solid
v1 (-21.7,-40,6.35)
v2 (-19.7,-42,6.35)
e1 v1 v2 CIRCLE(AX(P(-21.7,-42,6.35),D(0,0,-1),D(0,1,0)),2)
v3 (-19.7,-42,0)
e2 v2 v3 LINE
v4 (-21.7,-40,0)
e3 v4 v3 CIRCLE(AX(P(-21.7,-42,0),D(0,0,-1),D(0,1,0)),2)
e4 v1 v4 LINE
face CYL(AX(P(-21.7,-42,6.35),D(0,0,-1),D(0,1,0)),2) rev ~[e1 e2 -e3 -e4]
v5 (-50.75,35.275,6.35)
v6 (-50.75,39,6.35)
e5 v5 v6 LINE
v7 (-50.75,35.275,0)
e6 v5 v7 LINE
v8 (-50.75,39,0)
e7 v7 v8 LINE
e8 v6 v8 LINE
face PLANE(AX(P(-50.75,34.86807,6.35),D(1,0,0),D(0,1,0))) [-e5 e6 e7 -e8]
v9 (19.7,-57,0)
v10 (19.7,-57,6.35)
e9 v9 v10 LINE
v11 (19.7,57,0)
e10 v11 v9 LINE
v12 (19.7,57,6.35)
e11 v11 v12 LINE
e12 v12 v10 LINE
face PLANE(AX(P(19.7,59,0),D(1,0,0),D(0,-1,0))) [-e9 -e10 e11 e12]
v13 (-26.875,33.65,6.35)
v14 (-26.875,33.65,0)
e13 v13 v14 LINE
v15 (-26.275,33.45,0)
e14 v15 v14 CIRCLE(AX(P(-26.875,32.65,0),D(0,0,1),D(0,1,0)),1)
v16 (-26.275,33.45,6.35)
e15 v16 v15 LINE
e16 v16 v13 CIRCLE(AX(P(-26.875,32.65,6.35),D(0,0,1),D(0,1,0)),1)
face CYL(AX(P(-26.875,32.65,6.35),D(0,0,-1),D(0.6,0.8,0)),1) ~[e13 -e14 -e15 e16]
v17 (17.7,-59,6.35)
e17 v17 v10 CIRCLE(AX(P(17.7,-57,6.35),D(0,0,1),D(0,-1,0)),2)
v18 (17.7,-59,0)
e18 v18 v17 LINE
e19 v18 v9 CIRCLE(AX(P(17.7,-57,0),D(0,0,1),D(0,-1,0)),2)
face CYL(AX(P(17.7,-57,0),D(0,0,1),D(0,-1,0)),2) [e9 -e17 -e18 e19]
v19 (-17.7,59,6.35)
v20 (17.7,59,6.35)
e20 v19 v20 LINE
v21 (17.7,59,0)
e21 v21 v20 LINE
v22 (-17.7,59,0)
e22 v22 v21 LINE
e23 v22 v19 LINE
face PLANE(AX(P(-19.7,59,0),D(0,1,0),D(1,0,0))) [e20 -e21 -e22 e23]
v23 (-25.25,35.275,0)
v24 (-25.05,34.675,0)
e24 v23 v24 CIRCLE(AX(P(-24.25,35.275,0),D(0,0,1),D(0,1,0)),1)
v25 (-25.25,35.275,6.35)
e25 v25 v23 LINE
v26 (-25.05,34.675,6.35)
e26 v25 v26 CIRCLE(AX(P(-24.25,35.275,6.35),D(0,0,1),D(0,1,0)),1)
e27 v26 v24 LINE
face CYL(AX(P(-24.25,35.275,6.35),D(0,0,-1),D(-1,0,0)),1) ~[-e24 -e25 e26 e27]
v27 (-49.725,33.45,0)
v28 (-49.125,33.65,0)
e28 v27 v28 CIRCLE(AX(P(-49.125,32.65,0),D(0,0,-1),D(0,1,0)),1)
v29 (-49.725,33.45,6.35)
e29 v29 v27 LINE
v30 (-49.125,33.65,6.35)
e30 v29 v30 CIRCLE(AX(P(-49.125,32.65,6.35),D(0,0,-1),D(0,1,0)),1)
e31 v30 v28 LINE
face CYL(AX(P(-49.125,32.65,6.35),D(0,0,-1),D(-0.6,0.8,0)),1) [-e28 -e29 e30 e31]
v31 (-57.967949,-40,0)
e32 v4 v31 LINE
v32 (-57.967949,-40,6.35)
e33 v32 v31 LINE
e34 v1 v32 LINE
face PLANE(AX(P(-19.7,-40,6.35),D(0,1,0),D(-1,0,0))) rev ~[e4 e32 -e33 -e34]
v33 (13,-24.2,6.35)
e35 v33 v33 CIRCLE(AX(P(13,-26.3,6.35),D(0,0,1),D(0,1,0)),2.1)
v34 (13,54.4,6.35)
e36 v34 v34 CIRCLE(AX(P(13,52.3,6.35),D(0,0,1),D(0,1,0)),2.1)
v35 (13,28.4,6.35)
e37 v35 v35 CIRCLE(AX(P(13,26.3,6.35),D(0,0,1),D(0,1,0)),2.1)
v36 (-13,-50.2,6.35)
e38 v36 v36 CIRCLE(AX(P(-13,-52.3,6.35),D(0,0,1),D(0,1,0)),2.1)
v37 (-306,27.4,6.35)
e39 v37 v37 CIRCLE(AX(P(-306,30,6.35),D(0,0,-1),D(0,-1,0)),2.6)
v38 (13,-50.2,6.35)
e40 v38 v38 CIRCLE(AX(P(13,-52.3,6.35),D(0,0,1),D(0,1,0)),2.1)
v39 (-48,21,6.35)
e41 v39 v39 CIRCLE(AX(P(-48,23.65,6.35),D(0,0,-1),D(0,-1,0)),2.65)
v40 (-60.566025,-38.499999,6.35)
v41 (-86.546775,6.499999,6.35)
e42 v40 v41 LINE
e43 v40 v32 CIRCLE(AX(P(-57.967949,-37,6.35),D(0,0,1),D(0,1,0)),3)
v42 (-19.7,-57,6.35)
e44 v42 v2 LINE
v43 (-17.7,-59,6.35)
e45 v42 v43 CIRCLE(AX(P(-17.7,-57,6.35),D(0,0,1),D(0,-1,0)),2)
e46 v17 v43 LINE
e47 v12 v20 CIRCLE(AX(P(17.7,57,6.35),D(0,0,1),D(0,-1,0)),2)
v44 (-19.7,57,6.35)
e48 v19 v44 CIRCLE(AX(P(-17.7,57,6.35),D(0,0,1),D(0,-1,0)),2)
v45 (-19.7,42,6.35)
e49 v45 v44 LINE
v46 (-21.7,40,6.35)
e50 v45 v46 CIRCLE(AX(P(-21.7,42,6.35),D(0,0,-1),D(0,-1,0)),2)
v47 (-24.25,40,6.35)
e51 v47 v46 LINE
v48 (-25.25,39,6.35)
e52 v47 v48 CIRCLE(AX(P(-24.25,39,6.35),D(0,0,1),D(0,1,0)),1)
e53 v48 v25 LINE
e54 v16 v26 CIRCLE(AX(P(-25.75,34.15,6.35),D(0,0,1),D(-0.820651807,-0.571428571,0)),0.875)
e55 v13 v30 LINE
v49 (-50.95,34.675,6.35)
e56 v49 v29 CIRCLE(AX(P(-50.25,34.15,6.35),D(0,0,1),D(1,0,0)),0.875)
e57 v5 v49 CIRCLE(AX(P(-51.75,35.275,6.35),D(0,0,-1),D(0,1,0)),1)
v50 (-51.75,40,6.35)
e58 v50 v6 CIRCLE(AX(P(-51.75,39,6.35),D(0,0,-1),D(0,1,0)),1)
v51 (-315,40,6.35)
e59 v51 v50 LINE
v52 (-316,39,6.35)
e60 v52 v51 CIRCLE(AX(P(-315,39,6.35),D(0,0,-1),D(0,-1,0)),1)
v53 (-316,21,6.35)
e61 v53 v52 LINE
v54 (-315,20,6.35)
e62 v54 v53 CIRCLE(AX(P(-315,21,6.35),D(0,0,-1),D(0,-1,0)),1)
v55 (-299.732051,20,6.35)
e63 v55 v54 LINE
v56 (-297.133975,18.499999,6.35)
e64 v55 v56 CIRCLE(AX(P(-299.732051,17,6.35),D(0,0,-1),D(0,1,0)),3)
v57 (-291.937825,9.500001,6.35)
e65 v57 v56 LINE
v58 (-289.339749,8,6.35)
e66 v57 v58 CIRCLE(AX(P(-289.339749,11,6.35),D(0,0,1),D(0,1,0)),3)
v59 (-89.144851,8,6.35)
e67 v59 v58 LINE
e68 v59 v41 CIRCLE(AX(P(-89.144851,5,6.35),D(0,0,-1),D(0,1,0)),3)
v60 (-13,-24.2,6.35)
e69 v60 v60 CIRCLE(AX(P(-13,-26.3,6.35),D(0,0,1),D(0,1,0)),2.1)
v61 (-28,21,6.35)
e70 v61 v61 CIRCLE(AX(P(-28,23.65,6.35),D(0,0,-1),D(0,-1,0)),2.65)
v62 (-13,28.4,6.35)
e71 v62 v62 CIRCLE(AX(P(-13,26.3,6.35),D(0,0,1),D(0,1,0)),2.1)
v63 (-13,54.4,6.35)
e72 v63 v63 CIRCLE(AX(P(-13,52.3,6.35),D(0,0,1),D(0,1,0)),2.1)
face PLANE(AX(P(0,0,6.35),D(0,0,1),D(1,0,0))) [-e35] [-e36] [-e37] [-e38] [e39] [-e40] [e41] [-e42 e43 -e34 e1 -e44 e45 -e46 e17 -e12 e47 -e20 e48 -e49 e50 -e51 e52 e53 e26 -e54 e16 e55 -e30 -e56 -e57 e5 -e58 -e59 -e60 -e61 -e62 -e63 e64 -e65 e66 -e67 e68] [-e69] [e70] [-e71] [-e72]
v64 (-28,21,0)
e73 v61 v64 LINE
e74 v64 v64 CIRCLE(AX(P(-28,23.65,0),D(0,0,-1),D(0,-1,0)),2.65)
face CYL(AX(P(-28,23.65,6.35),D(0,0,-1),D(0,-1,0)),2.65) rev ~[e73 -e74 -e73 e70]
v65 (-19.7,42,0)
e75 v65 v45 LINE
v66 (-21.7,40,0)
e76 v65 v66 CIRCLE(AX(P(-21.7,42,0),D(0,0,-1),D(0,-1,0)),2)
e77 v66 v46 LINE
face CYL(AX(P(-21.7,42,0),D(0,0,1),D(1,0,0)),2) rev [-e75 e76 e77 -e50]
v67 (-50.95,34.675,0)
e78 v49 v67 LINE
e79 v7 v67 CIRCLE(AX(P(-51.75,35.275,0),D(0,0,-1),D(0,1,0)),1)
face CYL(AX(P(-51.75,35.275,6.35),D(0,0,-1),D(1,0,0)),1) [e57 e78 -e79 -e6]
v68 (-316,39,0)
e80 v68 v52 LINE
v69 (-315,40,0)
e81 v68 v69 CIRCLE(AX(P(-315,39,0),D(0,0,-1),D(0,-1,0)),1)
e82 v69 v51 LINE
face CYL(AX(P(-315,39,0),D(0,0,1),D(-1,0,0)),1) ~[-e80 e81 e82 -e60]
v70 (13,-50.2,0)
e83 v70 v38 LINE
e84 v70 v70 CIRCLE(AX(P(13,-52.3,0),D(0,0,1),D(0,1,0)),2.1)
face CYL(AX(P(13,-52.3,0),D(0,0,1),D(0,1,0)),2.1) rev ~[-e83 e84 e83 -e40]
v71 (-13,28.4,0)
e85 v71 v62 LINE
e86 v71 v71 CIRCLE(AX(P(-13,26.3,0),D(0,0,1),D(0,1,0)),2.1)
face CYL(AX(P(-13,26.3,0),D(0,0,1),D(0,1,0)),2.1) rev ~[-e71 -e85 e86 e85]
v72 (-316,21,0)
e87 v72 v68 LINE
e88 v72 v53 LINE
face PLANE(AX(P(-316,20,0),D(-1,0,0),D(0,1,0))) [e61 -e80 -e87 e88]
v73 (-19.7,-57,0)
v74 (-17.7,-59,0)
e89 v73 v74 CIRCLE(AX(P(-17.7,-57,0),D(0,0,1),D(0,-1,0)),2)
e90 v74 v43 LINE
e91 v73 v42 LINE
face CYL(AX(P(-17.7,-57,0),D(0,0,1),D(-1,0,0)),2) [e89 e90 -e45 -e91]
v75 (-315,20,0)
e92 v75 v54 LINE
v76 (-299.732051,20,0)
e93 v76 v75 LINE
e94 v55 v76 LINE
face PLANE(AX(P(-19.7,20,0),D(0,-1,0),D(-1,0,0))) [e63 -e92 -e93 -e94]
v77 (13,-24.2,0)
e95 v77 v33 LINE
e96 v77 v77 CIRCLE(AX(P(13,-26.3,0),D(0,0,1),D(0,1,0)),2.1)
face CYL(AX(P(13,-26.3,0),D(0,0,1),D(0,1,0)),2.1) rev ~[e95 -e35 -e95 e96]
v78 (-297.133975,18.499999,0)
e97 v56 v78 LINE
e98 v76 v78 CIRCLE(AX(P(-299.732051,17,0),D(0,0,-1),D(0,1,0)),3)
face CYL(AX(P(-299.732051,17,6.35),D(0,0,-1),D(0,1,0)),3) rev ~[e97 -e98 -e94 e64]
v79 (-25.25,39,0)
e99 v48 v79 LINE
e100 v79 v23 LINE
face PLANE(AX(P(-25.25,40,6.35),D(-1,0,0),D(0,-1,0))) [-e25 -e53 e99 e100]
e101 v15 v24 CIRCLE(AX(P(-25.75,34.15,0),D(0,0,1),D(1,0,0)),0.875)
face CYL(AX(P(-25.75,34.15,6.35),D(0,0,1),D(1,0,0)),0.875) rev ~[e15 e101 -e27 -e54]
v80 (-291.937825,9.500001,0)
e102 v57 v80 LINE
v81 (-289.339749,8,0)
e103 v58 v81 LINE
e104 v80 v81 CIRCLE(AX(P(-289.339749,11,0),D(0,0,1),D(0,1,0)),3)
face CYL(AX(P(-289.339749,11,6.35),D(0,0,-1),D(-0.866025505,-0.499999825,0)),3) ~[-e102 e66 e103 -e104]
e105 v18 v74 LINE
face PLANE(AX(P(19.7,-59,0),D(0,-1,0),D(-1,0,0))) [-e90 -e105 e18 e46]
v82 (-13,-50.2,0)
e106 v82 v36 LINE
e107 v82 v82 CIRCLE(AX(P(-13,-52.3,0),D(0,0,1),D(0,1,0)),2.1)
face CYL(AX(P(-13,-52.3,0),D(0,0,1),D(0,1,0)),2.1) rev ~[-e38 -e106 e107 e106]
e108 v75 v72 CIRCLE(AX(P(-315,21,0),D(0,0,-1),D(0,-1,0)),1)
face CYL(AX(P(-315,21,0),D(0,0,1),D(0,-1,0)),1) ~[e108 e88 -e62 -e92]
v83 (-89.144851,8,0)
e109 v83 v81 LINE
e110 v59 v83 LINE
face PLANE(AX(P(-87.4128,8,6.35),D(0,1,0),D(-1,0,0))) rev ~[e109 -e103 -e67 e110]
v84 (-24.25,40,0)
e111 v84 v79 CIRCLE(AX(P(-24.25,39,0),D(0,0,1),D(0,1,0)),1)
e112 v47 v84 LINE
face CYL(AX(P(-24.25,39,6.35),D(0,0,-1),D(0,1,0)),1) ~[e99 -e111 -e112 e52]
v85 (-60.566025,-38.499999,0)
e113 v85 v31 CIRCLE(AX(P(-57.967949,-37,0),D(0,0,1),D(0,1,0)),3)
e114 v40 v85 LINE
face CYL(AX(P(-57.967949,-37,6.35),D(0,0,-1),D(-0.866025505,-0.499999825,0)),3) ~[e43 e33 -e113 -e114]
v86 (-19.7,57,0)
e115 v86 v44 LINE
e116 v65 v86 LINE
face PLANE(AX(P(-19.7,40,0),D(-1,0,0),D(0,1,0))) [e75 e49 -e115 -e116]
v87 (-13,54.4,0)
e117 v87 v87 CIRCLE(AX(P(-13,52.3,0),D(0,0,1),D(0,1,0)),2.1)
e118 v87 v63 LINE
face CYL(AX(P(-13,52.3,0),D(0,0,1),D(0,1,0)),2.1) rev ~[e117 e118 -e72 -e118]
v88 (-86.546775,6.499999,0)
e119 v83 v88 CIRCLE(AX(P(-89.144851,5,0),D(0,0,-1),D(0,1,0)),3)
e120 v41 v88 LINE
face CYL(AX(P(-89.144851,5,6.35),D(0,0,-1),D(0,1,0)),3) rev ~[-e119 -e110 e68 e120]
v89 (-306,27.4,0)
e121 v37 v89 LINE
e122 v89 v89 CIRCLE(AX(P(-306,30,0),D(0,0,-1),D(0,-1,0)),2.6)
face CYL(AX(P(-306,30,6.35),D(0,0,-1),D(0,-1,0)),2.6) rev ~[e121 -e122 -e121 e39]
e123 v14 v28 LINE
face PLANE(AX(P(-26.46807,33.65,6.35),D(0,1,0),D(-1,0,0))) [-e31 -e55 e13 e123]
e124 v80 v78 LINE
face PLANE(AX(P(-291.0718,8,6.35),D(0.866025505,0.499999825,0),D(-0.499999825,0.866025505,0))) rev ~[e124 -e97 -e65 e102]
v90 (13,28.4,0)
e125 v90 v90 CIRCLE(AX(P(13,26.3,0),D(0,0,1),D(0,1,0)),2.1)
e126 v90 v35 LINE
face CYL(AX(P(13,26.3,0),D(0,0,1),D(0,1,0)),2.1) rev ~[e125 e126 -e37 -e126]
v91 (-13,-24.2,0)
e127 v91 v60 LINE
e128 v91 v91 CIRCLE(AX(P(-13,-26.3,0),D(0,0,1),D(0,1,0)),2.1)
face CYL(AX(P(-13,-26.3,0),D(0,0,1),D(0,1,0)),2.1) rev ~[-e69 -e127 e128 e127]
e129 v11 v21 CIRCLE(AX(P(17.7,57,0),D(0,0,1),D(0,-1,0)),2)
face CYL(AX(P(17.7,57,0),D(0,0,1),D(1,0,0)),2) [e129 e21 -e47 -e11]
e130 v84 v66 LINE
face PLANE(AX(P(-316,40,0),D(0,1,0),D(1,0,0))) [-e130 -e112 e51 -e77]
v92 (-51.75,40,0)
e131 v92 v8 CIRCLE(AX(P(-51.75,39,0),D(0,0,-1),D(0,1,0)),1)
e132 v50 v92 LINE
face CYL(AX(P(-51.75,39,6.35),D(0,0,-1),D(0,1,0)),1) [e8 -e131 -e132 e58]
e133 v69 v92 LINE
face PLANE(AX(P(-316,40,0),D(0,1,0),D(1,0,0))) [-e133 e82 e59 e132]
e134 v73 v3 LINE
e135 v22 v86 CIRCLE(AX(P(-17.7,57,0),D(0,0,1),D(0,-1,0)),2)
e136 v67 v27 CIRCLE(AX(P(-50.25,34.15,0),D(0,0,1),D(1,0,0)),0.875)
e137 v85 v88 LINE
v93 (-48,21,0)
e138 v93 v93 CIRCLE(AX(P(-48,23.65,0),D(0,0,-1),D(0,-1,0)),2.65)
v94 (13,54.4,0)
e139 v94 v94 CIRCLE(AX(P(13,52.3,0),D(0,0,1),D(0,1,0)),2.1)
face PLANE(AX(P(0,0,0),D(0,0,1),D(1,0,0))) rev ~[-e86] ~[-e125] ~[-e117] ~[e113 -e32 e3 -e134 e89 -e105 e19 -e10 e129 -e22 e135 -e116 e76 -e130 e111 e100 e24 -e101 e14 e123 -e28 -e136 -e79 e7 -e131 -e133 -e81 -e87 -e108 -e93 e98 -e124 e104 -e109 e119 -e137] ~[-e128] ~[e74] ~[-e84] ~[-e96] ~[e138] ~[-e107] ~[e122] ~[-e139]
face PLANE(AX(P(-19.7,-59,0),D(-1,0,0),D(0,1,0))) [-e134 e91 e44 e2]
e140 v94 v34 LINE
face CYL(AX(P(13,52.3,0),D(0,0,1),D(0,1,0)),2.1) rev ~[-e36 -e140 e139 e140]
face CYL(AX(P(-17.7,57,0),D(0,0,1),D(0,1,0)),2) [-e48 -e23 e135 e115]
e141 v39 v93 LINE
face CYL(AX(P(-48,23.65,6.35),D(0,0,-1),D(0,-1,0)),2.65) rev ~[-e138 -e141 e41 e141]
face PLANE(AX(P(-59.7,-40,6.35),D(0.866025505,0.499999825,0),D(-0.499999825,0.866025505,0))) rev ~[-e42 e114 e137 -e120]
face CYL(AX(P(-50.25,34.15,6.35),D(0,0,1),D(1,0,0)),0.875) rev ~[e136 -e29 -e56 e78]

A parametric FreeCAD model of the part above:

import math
import FreeCAD as App
import Part
import Sketcher

V = App.Vector
Q = App.Units.Quantity


def edges_at(feature, points):
    """Names of the edges that pass closest to the given points."""
    edges = feature.Shape.Edges
    near = lambda p: min(range(len(edges)), key=lambda i: edges[i].distToShape(Part.Vertex(*p))[0])
    return sorted({f"Edge{near(p) + 1}" for p in points})


def add_polygon(sketch, points):
    """Adds a closed chain of lines whose ends are joined by coincident constraints."""
    first, n = sketch.GeometryCount, len(points)
    for a, b in zip(points, points[1:] + points[:1]):
        sketch.addGeometry(Part.LineSegment(App.Vector(*a, 0), App.Vector(*b, 0)), False)
    for i in range(n):
        sketch.addConstraint(Sketcher.Constraint("Coincident", first + i, 2, first + (i + 1) % n, 1))

doc = App.newDocument("Part")
body = doc.addObject("PartDesign::Body", "Body")

sketch1 = body.newObject("Sketcher::SketchObject", "Sketch")
sketch1.AttachmentSupport = (doc.getObject("XY_Plane"), [""])
sketch1.MapMode = "FlatFace"
add_polygon(sketch1, [(-20, -59), (20, -59), (20, 59), (-20, 59), (-20, 40), (-316, 40), (-316, 20), (-20, 20)])
sketch1.addConstraint([
    Sketcher.Constraint("Horizontal", 0),
    Sketcher.Constraint("Vertical", 1),
    Sketcher.Constraint("Horizontal", 2),
    Sketcher.Constraint("Vertical", 3),
    Sketcher.Constraint("Horizontal", 4),
    Sketcher.Constraint("Vertical", 5),
    Sketcher.Constraint("Horizontal", 6),
    Sketcher.Constraint("Vertical", 7),
    Sketcher.Constraint("Symmetric", 0, 2, 2, 2, -1, 1),
    Sketcher.Constraint("Vertical", 3, 2, 6, 2),
    Sketcher.Constraint("DistanceY", 5, 2, 5, 1, 20.0),
    Sketcher.Constraint("DistanceX", 0, 1, 0, 2, 39.4),
    Sketcher.Constraint("DistanceX", 4, 2, -1, 1, 316.0),
    Sketcher.Constraint("DistanceY", -1, 1, 5, 2, 20.0),
    Sketcher.Constraint("DistanceY", 1, 1, 1, 2, 118.0),
])
pad1 = body.newObject("PartDesign::Pad", "Pad")
pad1.Profile = sketch1
pad1.Length = 6.35

sketch2 = body.newObject("Sketcher::SketchObject", "Sketch001")
sketch2.AttachmentSupport = (doc.getObject("XY_Plane"), [""])
sketch2.MapMode = "FlatFace"
sketch2.AttachmentOffset = App.Placement(V(0, 0, 6.35), App.Rotation())
add_polygon(sketch2, [(-60, -40), (-20, -40), (-20, 20), (-298, 20), (-291, 8), (-87, 8)])
sketch2.addConstraint([
    Sketcher.Constraint("Horizontal", 0),
    Sketcher.Constraint("Vertical", 1),
    Sketcher.Constraint("Horizontal", 2),
    Sketcher.Constraint("Horizontal", 4),
    Sketcher.Constraint("Parallel", 3, 5),
    Sketcher.Constraint("DistanceX", 0, 1, 0, 2, 40.0),
    Sketcher.Constraint("DistanceY", 0, 2, -1, 1, 40.0),
    Sketcher.Constraint("DistanceY", 3, 2, 2, 2, 12.0),
    Sketcher.Constraint("DistanceY", 1, 1, 1, 2, 60.0),
    Sketcher.Constraint("Angle", 3, Q("-60 deg")),
    Sketcher.Constraint("DistanceX", 2, 2, 2, 1, 278.3),
    Sketcher.Constraint("DistanceX", 2, 2, -1, 1, 298.0),
])
pad2 = body.newObject("PartDesign::Pad", "Pad001")
pad2.Profile = sketch2
pad2.Length = 6.35
pad2.Reversed = True

sketch3 = body.newObject("Sketcher::SketchObject", "Sketch002")
sketch3.AttachmentSupport = (doc.getObject("XY_Plane"), [""])
sketch3.MapMode = "FlatFace"
sketch3.addGeometry([
    Part.Circle(V(-13, 52.3, 0), V(0, 0, 1), 2.1),
    Part.Circle(V(13, 52.3, 0), V(0, 0, 1), 2.1),
    Part.Circle(V(13, 26.3, 0), V(0, 0, 1), 2.1),
    Part.Circle(V(-13, 26.3, 0), V(0, 0, 1), 2.1),
    Part.Circle(V(-13, -26.3, 0), V(0, 0, 1), 2.1),
    Part.Circle(V(13, -26.3, 0), V(0, 0, 1), 2.1),
    Part.Circle(V(13, -52.3, 0), V(0, 0, 1), 2.1),
    Part.Circle(V(-13, -52.3, 0), V(0, 0, 1), 2.1),
], False)
sketch3.addConstraint([
    Sketcher.Constraint("Equal", 0, 1),
    Sketcher.Constraint("Equal", 1, 2),
    Sketcher.Constraint("Equal", 2, 3),
    Sketcher.Constraint("Equal", 3, 4),
    Sketcher.Constraint("Equal", 4, 5),
    Sketcher.Constraint("Equal", 5, 6),
    Sketcher.Constraint("Equal", 6, 7),
    Sketcher.Constraint("Symmetric", 2, 3, 4, 3, -1, 1),
    Sketcher.Constraint("Symmetric", 3, 3, 5, 3, -1, 1),
    Sketcher.Constraint("Symmetric", 0, 3, 6, 3, -1, 1),
    Sketcher.Constraint("Symmetric", 1, 3, 7, 3, -1, 1),
    Sketcher.Constraint("Symmetric", 0, 3, 1, 3, -2),
    Sketcher.Constraint("Symmetric", 2, 3, 3, 3, -2),
    Sketcher.Constraint("Vertical", 1, 3, 2, 3),
    Sketcher.Constraint("Diameter", 0, 4.2),
    Sketcher.Constraint("DistanceX", 0, 3, -1, 1, 13.0),
    Sketcher.Constraint("DistanceY", 2, 3, 1, 3, 26.0),
    Sketcher.Constraint("DistanceY", -1, 1, 0, 3, 52.3),
])
doc.recompute()
hole = body.newObject("PartDesign::Hole", "Hole")
hole.Profile = sketch3
hole.ThreadType = "None"
hole.Diameter = 4.2
hole.DepthType = "ThroughAll"
hole.Reversed = True

sketch4 = body.newObject("Sketcher::SketchObject", "Sketch003")
sketch4.AttachmentSupport = (doc.getObject("XY_Plane"), [""])
sketch4.MapMode = "FlatFace"
sketch4.AttachmentOffset = App.Placement(V(0, 0, 6.35), App.Rotation())
sketch4.addGeometry(Part.Circle(V(-306, 30, 0), V(0, 0, 1), 2.6), False)
sketch4.addConstraint([
    Sketcher.Constraint("Diameter", 0, 5.2),
    Sketcher.Constraint("DistanceX", 0, 3, -1, 1, 306.0),
    Sketcher.Constraint("DistanceY", -1, 1, 0, 3, 30.0),
])
doc.recompute()
hole2 = body.newObject("PartDesign::Hole", "Hole001")
hole2.Profile = sketch4
hole2.ThreadType = "None"
hole2.Diameter = 5.2
hole2.DepthType = "ThroughAll"

sketch5 = body.newObject("Sketcher::SketchObject", "Sketch004")
sketch5.AttachmentSupport = (doc.getObject("XY_Plane"), [""])
sketch5.MapMode = "FlatFace"
sketch5.AttachmentOffset = App.Placement(V(0, 0, 6.35), App.Rotation())
sketch5.addGeometry([
    Part.LineSegment(V(-25.2, 40, 0), V(-50.8, 40, 0)),
    Part.LineSegment(V(-50.8, 40, 0), V(-50.8, 34.9, 0)),
    Part.ArcOfCircle(Part.Circle(V(-50.2, 34.1, 0), V(0, 0, 1), 0.9), math.radians(125), math.radians(325)),
    Part.LineSegment(V(-49.5, 33.6, 0), V(-26.5, 33.6, 0)),
    Part.ArcOfCircle(Part.Circle(V(-25.8, 34.1, 0), V(0, 0, 1), 0.9), math.radians(-145), math.radians(55)),
    Part.LineSegment(V(-25.2, 34.9, 0), V(-25.2, 40, 0)),
], False)
sketch5.addConstraint([
    Sketcher.Constraint("Coincident", 0, 2, 1, 1),
    Sketcher.Constraint("Coincident", 1, 2, 2, 1),
    Sketcher.Constraint("Coincident", 2, 2, 3, 1),
    Sketcher.Constraint("Coincident", 3, 2, 4, 1),
    Sketcher.Constraint("Coincident", 4, 2, 5, 1),
    Sketcher.Constraint("Coincident", 5, 2, 0, 1),
    Sketcher.Constraint("Horizontal", 0),
    Sketcher.Constraint("Vertical", 1),
    Sketcher.Constraint("Horizontal", 3),
    Sketcher.Constraint("Vertical", 5),
    Sketcher.Constraint("Equal", 2, 4),
    Sketcher.Constraint("Horizontal", 2, 3, 4, 3),
    Sketcher.Constraint("Horizontal", 1, 2, 4, 2),
    Sketcher.Constraint("DistanceX", 0, 2, 0, 1, 25.5),
    Sketcher.Constraint("Radius", 2, 0.875),
    Sketcher.Constraint("DistanceX", 0, 2, 2, 3, 0.5),
    Sketcher.Constraint("DistanceY", 2, 2, 2, 3, 0.5),
    Sketcher.Constraint("DistanceY", -1, 1, 0, 2, 40.0),
    Sketcher.Constraint("DistanceY", 1, 2, 1, 1, 5.132),
    Sketcher.Constraint("DistanceX", 2, 3, -1, 1, 50.25),
])
pocket1 = body.newObject("PartDesign::Pocket", "Pocket")
pocket1.Profile = sketch5
pocket1.Type = "ThroughAll"

sketch6 = body.newObject("Sketcher::SketchObject", "Sketch005")
sketch6.AttachmentSupport = (doc.getObject("XY_Plane"), [""])
sketch6.MapMode = "FlatFace"
sketch6.AttachmentOffset = App.Placement(V(0, 0, 6.35), App.Rotation())
sketch6.addGeometry([
    Part.Circle(V(-48, 23.6, 0), V(0, 0, 1), 2.6),
    Part.Circle(V(-28, 23.6, 0), V(0, 0, 1), 2.6),
], False)
sketch6.addConstraint([
    Sketcher.Constraint("Equal", 0, 1),
    Sketcher.Constraint("Horizontal", 0, 3, 1, 3),
    Sketcher.Constraint("Diameter", 0, 5.3),
    Sketcher.Constraint("DistanceX", 0, 3, -1, 1, 48.0),
    Sketcher.Constraint("DistanceX", 1, 3, -1, 1, 28.0),
    Sketcher.Constraint("DistanceY", -1, 1, 0, 3, 23.65),
])
doc.recompute()
hole3 = body.newObject("PartDesign::Hole", "Hole002")
hole3.Profile = sketch6
hole3.ThreadType = "None"
hole3.Diameter = 5.3
hole3.DepthType = "ThroughAll"
doc.recompute()

fillet = body.newObject("PartDesign::Fillet", "Fillet")
fillet.Base = (hole3, edges_at(hole3, [
    (-316, 40, 3.175),
    (-316, 20, 3.175),
    (-50.75, 40, 3.175),
    (-50.75, 34.868, 3.175),
    (-49.532, 33.65, 3.175),
    (-26.468, 33.65, 3.175),
    (-25.25, 34.868, 3.175),
    (-25.25, 40, 3.175),
]))
fillet.Radius = 1
doc.recompute()

fillet2 = body.newObject("PartDesign::Fillet", "Fillet001")
fillet2.Base = (fillet, edges_at(fillet, [
    (-59.7, -40, 3.175),
    (-291.072, 8, 3.175),
    (-87.413, 8, 3.175),
    (-298, 20, 3.175),
]))
fillet2.Radius = 3
doc.recompute()

fillet3 = body.newObject("PartDesign::Fillet", "Fillet002")
fillet3.Base = (fillet2, edges_at(fillet2, [
    (-19.7, 40, 3.175),
    (-19.7, 59, 3.175),
    (19.7, 59, 3.175),
    (-19.7, -40, 3.175),
    (-19.7, -59, 3.175),
    (19.7, -59, 3.175),
]))
fillet3.Radius = 2

doc.recompute()
